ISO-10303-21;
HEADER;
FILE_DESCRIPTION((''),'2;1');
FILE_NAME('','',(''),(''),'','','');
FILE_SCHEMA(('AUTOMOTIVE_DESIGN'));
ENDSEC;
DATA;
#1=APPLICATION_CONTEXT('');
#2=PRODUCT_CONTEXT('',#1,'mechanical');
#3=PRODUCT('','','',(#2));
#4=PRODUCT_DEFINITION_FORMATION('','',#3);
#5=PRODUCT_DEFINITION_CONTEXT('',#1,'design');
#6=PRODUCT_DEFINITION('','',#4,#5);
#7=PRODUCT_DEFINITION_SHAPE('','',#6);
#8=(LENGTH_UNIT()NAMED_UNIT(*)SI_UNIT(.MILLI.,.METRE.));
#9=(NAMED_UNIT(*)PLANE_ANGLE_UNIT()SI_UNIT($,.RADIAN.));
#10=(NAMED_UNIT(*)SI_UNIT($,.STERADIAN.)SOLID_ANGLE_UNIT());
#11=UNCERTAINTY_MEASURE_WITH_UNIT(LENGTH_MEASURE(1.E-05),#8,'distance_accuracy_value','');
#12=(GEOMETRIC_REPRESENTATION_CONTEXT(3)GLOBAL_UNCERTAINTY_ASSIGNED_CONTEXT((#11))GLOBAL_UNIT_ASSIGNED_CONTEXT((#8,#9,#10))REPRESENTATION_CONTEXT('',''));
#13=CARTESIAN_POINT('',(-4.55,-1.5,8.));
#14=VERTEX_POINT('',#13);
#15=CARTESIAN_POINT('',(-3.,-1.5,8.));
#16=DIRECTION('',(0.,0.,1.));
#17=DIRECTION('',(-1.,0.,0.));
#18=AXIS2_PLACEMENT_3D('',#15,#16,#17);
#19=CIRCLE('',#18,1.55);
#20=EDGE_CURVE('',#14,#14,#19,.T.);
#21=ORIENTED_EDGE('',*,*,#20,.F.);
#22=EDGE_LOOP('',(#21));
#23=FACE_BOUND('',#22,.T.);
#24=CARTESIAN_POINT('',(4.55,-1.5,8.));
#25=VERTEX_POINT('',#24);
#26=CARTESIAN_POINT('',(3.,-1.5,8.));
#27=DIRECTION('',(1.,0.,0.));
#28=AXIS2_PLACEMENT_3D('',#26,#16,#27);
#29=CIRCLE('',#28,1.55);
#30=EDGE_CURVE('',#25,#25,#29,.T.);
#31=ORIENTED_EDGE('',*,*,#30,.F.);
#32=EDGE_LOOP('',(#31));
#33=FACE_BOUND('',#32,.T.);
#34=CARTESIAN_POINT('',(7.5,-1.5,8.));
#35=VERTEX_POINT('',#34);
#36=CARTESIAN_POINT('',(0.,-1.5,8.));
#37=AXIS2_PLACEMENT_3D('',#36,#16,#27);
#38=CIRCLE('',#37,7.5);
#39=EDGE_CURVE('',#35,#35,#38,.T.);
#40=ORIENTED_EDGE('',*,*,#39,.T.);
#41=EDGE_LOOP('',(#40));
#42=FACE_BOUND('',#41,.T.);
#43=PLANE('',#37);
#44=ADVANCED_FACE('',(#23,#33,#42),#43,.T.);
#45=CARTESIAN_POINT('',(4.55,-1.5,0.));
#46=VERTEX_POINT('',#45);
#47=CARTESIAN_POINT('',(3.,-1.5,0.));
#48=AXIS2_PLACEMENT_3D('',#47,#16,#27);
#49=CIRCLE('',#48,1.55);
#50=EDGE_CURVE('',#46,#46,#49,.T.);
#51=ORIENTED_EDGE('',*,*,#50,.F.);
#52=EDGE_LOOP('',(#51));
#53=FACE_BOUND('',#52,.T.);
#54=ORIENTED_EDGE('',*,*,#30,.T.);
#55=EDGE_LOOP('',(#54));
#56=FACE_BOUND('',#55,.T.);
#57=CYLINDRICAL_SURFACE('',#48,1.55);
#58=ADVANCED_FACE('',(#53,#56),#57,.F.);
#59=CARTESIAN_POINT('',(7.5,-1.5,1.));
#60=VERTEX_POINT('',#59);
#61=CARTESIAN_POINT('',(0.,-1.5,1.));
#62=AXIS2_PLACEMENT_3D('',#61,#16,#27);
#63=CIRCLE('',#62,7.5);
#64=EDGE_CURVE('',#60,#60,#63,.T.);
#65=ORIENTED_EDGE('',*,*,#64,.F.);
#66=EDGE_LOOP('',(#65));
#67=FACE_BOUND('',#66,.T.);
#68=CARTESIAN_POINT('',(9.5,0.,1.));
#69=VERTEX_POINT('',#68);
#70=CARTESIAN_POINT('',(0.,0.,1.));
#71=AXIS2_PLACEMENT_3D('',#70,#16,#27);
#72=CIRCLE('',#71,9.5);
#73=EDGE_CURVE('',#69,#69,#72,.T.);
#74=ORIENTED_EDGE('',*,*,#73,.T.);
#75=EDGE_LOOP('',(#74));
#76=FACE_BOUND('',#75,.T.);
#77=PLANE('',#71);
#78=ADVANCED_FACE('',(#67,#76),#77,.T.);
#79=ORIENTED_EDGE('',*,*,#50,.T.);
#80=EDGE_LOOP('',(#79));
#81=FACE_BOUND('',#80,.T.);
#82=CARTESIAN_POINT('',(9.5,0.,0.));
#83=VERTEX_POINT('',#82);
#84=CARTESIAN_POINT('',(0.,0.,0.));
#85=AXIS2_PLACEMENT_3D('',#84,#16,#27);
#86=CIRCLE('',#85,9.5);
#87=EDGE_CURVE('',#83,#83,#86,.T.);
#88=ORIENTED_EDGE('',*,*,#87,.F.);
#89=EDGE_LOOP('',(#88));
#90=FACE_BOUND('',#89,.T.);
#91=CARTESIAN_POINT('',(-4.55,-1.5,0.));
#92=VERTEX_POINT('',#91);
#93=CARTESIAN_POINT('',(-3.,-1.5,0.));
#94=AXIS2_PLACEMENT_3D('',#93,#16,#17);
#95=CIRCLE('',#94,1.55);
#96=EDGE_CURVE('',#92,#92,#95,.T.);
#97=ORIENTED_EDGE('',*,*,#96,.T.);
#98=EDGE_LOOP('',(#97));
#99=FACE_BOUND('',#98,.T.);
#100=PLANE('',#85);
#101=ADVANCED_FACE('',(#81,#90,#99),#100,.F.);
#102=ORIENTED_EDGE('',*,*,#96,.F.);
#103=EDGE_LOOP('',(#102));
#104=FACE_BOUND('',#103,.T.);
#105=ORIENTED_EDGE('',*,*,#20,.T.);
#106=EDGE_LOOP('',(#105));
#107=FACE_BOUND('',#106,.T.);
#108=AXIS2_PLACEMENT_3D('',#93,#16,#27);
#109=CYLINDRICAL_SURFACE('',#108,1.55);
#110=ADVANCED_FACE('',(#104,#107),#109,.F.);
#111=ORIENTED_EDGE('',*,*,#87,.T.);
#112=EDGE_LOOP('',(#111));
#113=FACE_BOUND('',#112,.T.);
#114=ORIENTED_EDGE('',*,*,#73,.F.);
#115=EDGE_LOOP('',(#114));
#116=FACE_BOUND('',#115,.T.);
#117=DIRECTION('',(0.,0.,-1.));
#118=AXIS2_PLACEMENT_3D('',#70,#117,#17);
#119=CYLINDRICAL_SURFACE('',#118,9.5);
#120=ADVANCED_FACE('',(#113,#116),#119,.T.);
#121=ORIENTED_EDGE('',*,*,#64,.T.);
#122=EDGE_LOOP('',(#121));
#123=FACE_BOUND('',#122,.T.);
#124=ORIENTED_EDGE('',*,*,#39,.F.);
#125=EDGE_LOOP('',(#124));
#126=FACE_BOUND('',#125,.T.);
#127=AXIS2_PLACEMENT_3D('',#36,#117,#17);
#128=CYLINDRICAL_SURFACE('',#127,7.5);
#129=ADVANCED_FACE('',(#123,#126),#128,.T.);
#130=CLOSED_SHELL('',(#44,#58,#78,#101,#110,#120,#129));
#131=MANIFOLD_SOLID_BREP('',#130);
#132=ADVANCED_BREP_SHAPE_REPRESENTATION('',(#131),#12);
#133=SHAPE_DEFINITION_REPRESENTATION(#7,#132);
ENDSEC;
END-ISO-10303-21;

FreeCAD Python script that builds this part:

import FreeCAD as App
import Part
import Sketcher

V = App.Vector

doc = App.newDocument("Part")
body = doc.addObject("PartDesign::Body", "Body")

# Sketch on XY plane
sketch1 = body.newObject("Sketcher::SketchObject", "Sketch")
sketch1.AttachmentSupport = (doc.getObject("XY_Plane"), [""])
sketch1.MapMode = "FlatFace"
sketch1.addGeometry(Part.Circle(V(0, 0, 0), V(0, 0, 1), 10), False)
sketch1.addConstraint(Sketcher.Constraint("Coincident", 0, 3, -1, 1))
sketch1.addConstraint(Sketcher.Constraint("Diameter", 0, 19.0))
pad1 = body.newObject("PartDesign::Pad", "Pad")
pad1.Profile = sketch1
pad1.Length = 1

# Sketch on XY plane
sketch2 = body.newObject("Sketcher::SketchObject", "Sketch001")
sketch2.AttachmentSupport = (doc.getObject("XY_Plane"), [""])
sketch2.MapMode = "FlatFace"
sketch2.AttachmentOffset = App.Placement(V(0, 0, 1), App.Rotation())
sketch2.addGeometry(Part.Circle(V(0, -2, 0), V(0, 0, 1), 8), False)
sketch2.addConstraint(Sketcher.Constraint("PointOnObject", 0, 3, -2))
sketch2.addConstraint(Sketcher.Constraint("Diameter", 0, 15.0))
sketch2.addConstraint(Sketcher.Constraint("DistanceY", 0, 3, -1, 1, 1.5))
pad2 = body.newObject("PartDesign::Pad", "Pad001")
pad2.Profile = sketch2
pad2.Length = 7

# Sketch on XY plane
sketch3 = body.newObject("Sketcher::SketchObject", "Sketch002")
sketch3.AttachmentSupport = (doc.getObject("XY_Plane"), [""])
sketch3.MapMode = "FlatFace"
sketch3.AttachmentOffset = App.Placement(V(0, 0, 8), App.Rotation())
sketch3.addGeometry(Part.Circle(V(3, -1.5, 0), V(0, 0, 1), 1.6), False)
sketch3.addGeometry(Part.Circle(V(-3, -1.5, 0), V(0, 0, 1), 1.6), False)
sketch3.addConstraint(Sketcher.Constraint("Equal", 0, 1))
sketch3.addConstraint(Sketcher.Constraint("Symmetric", 0, 3, 1, 3, -2))
sketch3.addConstraint(Sketcher.Constraint("Diameter", 0, 3.1))
sketch3.addConstraint(Sketcher.Constraint("DistanceX", -1, 1, 0, 3, 3.0))
sketch3.addConstraint(Sketcher.Constraint("DistanceY", 0, 3, -1, 1, 1.5))
pocket1 = body.newObject("PartDesign::Pocket", "Pocket")
pocket1.Profile = sketch3
pocket1.Type = "ThroughAll"

doc.recompute()
